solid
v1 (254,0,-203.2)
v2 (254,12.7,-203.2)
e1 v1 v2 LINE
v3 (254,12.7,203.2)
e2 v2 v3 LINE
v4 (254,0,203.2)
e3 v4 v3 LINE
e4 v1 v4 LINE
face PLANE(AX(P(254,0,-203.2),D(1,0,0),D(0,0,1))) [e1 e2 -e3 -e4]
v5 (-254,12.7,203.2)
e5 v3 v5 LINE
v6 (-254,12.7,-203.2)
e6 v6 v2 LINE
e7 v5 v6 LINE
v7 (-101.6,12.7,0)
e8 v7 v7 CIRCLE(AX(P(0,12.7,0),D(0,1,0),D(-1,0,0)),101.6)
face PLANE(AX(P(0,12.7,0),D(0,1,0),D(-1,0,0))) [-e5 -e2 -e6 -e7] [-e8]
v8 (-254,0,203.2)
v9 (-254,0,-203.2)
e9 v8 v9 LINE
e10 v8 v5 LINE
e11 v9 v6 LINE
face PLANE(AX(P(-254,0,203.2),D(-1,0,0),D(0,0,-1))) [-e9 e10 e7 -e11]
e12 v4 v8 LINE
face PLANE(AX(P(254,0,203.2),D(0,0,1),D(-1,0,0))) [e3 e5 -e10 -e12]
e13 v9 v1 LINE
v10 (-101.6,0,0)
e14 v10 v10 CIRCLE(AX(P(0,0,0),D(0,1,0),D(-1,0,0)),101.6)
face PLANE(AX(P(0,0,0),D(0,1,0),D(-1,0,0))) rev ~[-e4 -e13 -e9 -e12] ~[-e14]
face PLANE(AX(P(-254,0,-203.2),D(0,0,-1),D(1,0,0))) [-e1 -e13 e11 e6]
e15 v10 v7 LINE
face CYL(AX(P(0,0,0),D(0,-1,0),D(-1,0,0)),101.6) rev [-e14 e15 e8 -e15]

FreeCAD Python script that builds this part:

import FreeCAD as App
import Part
import Sketcher

V = App.Vector
Q = App.Units.Quantity

doc = App.newDocument("Part")
body = doc.addObject("PartDesign::Body", "Body")

# Sketch on XZ plane
sketch1 = body.newObject("Sketcher::SketchObject", "Sketch")
sketch1.AttachmentSupport = (doc.getObject("XZ_Plane"), [""])
sketch1.MapMode = "FlatFace"
sketch1.addGeometry([
    Part.LineSegment(V(-254, 203, 0), V(254, 203, 0)),  # 0
    Part.LineSegment(V(254, 203, 0), V(254, -203, 0)),  # 1
    Part.LineSegment(V(254, -203, 0), V(-254, -203, 0)),  # 2
    Part.LineSegment(V(-254, -203, 0), V(-254, 203, 0)),  # 3
    Part.Circle(V(0, 0, 0), V(0, 0, 1), 102),  # 4
], False)
sketch1.addConstraint([
    Sketcher.Constraint("Coincident", 0, 2, 1, 1),
    Sketcher.Constraint("Coincident", 1, 2, 2, 1),
    Sketcher.Constraint("Coincident", 2, 2, 3, 1),
    Sketcher.Constraint("Coincident", 3, 2, 0, 1),
    Sketcher.Constraint("Horizontal", 0),
    Sketcher.Constraint("Vertical", 1),
    Sketcher.Constraint("Horizontal", 2),
    Sketcher.Constraint("Vertical", 3),
    Sketcher.Constraint("Coincident", 4, 3, -1, 1),
    Sketcher.Constraint("Symmetric", 0, 2, 2, 2, -1, 1),
    Sketcher.Constraint("Diameter", 4, Q("8 in")),
    Sketcher.Constraint("DistanceX", 0, 1, 0, 2, Q("20 in")),
    Sketcher.Constraint("DistanceY", 1, 2, 1, 1, Q("16 in")),
])
pad1 = body.newObject("PartDesign::Pad", "Pad")
pad1.Profile = sketch1
pad1.Length = Q("0.5 in")
pad1.Reversed = True

doc.recompute()
